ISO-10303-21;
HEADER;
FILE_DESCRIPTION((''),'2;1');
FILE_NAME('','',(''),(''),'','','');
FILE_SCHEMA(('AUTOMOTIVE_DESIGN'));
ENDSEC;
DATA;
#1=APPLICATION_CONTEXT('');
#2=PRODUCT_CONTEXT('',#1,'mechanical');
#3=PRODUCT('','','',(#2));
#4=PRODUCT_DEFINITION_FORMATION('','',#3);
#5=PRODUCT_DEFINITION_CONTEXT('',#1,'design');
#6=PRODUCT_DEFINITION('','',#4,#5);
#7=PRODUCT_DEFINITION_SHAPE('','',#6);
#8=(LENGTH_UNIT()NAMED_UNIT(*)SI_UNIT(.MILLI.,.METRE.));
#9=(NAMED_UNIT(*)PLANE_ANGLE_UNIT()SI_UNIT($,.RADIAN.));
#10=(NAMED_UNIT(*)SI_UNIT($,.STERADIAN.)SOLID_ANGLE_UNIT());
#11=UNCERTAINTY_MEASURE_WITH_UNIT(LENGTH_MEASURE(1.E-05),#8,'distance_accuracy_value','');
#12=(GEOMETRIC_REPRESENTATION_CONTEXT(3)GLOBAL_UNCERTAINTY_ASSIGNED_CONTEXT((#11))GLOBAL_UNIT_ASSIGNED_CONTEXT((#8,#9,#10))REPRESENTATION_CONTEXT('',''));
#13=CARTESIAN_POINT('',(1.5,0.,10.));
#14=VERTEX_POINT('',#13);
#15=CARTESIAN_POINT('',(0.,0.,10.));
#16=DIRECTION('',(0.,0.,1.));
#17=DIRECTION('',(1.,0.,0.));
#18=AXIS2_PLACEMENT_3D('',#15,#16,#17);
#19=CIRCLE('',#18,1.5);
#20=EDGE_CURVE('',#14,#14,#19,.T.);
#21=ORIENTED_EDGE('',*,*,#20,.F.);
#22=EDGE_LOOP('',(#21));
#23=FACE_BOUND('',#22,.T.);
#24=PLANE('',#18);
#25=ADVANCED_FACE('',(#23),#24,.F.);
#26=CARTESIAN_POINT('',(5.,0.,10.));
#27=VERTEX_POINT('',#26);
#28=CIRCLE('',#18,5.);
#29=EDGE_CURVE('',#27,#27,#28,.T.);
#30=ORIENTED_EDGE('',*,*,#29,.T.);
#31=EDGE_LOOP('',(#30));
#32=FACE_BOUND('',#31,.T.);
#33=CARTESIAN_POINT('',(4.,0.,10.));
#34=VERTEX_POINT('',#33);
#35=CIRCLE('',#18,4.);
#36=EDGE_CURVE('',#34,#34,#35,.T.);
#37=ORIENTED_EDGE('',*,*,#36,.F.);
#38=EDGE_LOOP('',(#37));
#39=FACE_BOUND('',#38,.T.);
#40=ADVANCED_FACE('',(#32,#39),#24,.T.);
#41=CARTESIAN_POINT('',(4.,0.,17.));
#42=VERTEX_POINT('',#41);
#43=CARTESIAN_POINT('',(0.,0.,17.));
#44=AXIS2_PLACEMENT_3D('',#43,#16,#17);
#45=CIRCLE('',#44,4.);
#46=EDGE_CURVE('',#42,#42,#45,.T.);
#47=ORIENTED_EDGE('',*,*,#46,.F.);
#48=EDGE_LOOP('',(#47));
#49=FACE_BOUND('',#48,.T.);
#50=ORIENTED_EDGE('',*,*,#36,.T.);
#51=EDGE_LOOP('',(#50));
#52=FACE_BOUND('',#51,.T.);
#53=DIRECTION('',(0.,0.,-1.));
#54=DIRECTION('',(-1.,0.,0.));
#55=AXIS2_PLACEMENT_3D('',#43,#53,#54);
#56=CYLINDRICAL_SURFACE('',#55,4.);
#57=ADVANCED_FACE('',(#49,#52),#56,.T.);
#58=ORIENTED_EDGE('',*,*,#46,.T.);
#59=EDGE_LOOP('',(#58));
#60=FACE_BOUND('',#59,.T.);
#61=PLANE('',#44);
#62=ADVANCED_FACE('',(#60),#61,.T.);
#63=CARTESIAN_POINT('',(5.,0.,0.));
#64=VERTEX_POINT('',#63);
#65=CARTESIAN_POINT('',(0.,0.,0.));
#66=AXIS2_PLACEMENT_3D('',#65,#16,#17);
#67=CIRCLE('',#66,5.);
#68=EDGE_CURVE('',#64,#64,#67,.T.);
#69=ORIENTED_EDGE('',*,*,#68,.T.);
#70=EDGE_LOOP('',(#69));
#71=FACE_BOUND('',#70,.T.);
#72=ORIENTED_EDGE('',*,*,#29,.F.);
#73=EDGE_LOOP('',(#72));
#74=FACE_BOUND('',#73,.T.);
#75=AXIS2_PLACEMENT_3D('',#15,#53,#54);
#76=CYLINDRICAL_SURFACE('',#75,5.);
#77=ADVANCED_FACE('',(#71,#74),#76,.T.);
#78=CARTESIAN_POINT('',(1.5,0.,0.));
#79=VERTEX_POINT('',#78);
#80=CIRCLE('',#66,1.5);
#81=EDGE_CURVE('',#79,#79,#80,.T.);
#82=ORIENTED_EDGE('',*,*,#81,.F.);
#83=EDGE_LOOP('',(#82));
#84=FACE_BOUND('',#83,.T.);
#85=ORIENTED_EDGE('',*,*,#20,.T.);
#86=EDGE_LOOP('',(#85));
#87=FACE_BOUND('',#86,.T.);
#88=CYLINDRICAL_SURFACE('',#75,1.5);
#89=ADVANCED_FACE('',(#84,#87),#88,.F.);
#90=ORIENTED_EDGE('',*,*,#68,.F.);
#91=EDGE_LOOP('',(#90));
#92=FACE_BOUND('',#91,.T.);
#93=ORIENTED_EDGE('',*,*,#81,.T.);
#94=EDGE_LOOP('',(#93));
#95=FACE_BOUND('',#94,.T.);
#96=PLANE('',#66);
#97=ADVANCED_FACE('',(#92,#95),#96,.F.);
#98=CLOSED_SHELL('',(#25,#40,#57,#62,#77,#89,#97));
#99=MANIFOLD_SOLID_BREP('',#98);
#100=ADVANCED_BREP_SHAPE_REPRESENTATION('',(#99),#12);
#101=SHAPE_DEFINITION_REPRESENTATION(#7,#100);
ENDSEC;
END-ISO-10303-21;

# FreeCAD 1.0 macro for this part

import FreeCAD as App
import Part
import Sketcher

V = App.Vector
Q = App.Units.Quantity

doc = App.newDocument("Part")
body = doc.addObject("PartDesign::Body", "Body")

# Sketch on XY plane
sketch1 = body.newObject("Sketcher::SketchObject", "Sketch")
sketch1.AttachmentSupport = (doc.getObject("XY_Plane"), [""])
sketch1.MapMode = "FlatFace"
sketch1.addGeometry(Part.Circle(V(0, 0, 0), V(0, 0, 1), 5), False)
sketch1.addGeometry(Part.Circle(V(0, 0, 0), V(0, 0, 1), 1.5), False)
sketch1.addConstraint(Sketcher.Constraint("Coincident", 0, 3, -1, 1))
sketch1.addConstraint(Sketcher.Constraint("Coincident", 1, 3, -1, 1))
sketch1.addConstraint(Sketcher.Constraint("Diameter", 0, Q("10 mm")))
sketch1.addConstraint(Sketcher.Constraint("Diameter", 1, Q("3 mm")))
pad1 = body.newObject("PartDesign::Pad", "Pad")
pad1.Profile = sketch1
pad1.Length = 10

# Sketch on XY plane
sketch2 = body.newObject("Sketcher::SketchObject", "Sketch001")
sketch2.AttachmentSupport = (doc.getObject("XY_Plane"), [""])
sketch2.MapMode = "FlatFace"
sketch2.AttachmentOffset = App.Placement(V(0, 0, 10), App.Rotation())
sketch2.addGeometry(Part.Circle(V(0, 0, 0), V(0, 0, 1), 4), False)
sketch2.addConstraint(Sketcher.Constraint("Coincident", 0, 3, -1, 1))
sketch2.addConstraint(Sketcher.Constraint("Diameter", 0, Q("8 mm")))
pad2 = body.newObject("PartDesign::Pad", "Pad001")
pad2.Profile = sketch2
pad2.Length = 7

doc.recompute()
